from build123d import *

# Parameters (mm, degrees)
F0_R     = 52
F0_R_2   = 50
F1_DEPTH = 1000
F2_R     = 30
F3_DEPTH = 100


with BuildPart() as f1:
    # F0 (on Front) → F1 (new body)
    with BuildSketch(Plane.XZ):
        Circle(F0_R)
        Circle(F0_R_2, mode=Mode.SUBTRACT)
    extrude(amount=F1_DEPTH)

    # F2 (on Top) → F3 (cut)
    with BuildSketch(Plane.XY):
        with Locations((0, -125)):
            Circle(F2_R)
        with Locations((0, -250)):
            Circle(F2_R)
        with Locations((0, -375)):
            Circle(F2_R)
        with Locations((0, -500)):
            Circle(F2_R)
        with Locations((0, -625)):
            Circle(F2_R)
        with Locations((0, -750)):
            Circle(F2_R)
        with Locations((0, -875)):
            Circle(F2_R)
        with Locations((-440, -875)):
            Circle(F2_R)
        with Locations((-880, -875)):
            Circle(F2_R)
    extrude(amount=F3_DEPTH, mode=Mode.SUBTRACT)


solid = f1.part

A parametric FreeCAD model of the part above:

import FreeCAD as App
import Part
import Sketcher
from FreeCAD import Vector
Q = App.Units.Quantity

doc = App.newDocument("Part")
body = doc.addObject("PartDesign::Body", "Body")

# Sketch on XZ plane
sketch1 = body.newObject("Sketcher::SketchObject", "Sketch")
sketch1.AttachmentSupport = (doc.getObject("XZ_Plane"), [""])
sketch1.MapMode = "FlatFace"
sketch1.addGeometry([
    Part.Circle(Vector(0, 0, 0), Vector(0, 0, 1), 52),
    Part.Circle(Vector(0, 0, 0), Vector(0, 0, 1), 50),
], False)
sketch1.addConstraint([
    Sketcher.Constraint("Coincident", 0, 3, -1, 1),
    Sketcher.Constraint("Coincident", 1, 3, -1, 1),
    Sketcher.Constraint("Diameter", 0, Q("104 mm")),
    Sketcher.Constraint("Diameter", 1, Q("100 mm")),
])
pad1 = body.newObject("PartDesign::Pad", "Pad")
pad1.Profile = sketch1
pad1.Length = 1000

# Sketch on XY plane
sketch2 = body.newObject("Sketcher::SketchObject", "Sketch001")
sketch2.AttachmentSupport = (doc.getObject("XY_Plane"), [""])
sketch2.MapMode = "FlatFace"
sketch2.addGeometry([
    Part.Circle(Vector(0, -125, 0), Vector(0, 0, 1), 30),  # 0
    Part.Circle(Vector(0, -250, 0), Vector(0, 0, 1), 30),  # 1
    Part.Circle(Vector(0, -375, 0), Vector(0, 0, 1), 30),  # 2
    Part.Circle(Vector(0, -500, 0), Vector(0, 0, 1), 30),  # 3
    Part.Circle(Vector(0, -625, 0), Vector(0, 0, 1), 30),  # 4
    Part.Circle(Vector(0, -750, 0), Vector(0, 0, 1), 30),  # 5
    Part.Circle(Vector(0, -875, 0), Vector(0, 0, 1), 30),  # 6
    Part.Circle(Vector(-440, -875, 0), Vector(0, 0, 1), 30),  # 7
    Part.Circle(Vector(-880, -875, 0), Vector(0, 0, 1), 30),  # 8
], False)
sketch2.addConstraint([
    Sketcher.Constraint("Equal", 0, 1),
    Sketcher.Constraint("Equal", 1, 2),
    Sketcher.Constraint("Equal", 2, 3),
    Sketcher.Constraint("Equal", 3, 4),
    Sketcher.Constraint("Equal", 4, 5),
    Sketcher.Constraint("Equal", 5, 6),
    Sketcher.Constraint("Equal", 6, 7),
    Sketcher.Constraint("Equal", 7, 8),
    Sketcher.Constraint("PointOnObject", 0, 3, -2),
    Sketcher.Constraint("PointOnObject", 1, 3, -2),
    Sketcher.Constraint("PointOnObject", 2, 3, -2),
    Sketcher.Constraint("PointOnObject", 3, 3, -2),
    Sketcher.Constraint("PointOnObject", 4, 3, -2),
    Sketcher.Constraint("PointOnObject", 5, 3, -2),
    Sketcher.Constraint("PointOnObject", 6, 3, -2),
    Sketcher.Constraint("Horizontal", 6, 3, 7, 3),
    Sketcher.Constraint("Horizontal", 7, 3, 8, 3),
    Sketcher.Constraint("Diameter", 0, Q("60 mm")),
    Sketcher.Constraint("DistanceY", 0, 3, -1, 1, Q("125 mm")),
    Sketcher.Constraint("DistanceY", 1, 3, -1, 1, Q("250 mm")),
    Sketcher.Constraint("DistanceY", 2, 3, -1, 1, Q("375 mm")),
    Sketcher.Constraint("DistanceY", 3, 3, -1, 1, Q("500 mm")),
    Sketcher.Constraint("DistanceY", 4, 3, -1, 1, Q("625 mm")),
    Sketcher.Constraint("DistanceY", 5, 3, -1, 1, Q("750 mm")),
    Sketcher.Constraint("DistanceY", 6, 3, -1, 1, Q("875 mm")),
    Sketcher.Constraint("DistanceX", 7, 3, -1, 1, Q("440 mm")),
    Sketcher.Constraint("DistanceX", 8, 3, -1, 1, Q("880 mm")),
])
pocket1 = body.newObject("PartDesign::Pocket", "Pocket")
pocket1.Profile = sketch2
pocket1.Length = 100
pocket1.Reversed = True

doc.recompute()
